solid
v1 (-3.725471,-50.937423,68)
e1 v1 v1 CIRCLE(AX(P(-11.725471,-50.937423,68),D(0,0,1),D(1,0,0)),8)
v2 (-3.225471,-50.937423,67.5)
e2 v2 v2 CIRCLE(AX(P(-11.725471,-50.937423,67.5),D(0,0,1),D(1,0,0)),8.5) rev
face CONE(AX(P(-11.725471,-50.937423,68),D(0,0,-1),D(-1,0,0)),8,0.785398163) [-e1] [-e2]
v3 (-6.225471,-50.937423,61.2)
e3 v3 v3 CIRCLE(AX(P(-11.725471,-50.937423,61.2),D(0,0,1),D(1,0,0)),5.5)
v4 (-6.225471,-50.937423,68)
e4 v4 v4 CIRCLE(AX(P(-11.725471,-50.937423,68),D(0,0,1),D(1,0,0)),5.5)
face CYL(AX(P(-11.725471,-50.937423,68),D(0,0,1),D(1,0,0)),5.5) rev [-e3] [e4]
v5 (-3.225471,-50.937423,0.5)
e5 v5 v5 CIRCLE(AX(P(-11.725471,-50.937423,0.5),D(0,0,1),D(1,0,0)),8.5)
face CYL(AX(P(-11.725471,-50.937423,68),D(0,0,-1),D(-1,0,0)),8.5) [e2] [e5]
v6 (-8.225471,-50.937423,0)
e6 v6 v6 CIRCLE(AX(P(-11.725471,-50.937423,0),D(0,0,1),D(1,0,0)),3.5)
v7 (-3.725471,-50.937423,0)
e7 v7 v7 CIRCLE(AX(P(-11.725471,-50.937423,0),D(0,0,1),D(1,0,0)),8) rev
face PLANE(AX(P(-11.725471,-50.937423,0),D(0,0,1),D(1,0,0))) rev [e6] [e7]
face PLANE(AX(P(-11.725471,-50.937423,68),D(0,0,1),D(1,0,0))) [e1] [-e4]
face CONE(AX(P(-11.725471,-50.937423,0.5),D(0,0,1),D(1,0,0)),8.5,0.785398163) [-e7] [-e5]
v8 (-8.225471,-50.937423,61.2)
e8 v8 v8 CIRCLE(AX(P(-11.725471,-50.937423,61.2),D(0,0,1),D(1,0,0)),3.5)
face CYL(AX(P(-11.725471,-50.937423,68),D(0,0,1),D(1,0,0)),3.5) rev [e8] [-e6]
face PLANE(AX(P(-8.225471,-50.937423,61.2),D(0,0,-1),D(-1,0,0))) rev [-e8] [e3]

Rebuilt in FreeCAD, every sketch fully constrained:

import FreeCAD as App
import Part
import Sketcher
Q = App.Units.Quantity


def edges_at(feature, points):
    """Names of the edges that pass closest to the given points."""
    edges = feature.Shape.Edges
    near = lambda p: min(range(len(edges)), key=lambda i: edges[i].distToShape(Part.Vertex(*p))[0])
    return sorted({f"Edge{near(p) + 1}" for p in points})

doc = App.newDocument("Part")
body = doc.addObject("PartDesign::Body", "Body")

# Sketch on XY plane
sketch1 = body.newObject("Sketcher::SketchObject", "Sketch")
sketch1.AttachmentSupport = (doc.getObject("XY_Plane"), [""])
sketch1.MapMode = "FlatFace"
sketch1.addGeometry(Part.Circle(App.Vector(-12, -51, 0), App.Vector(0, 0, 1), 8), False)
sketch1.addConstraint([
    Sketcher.Constraint("Diameter", 0, Q("17 mm")),
    Sketcher.Constraint("DistanceX", 0, 3, -1, 1, Q("11.725471 mm")),
    Sketcher.Constraint("DistanceY", 0, 3, -1, 1, Q("50.937423 mm")),
])
pad1 = body.newObject("PartDesign::Pad", "Pad")
pad1.Profile = sketch1
pad1.Length = 68

# Sketch on XY plane
sketch2 = body.newObject("Sketcher::SketchObject", "Sketch001")
sketch2.AttachmentSupport = (doc.getObject("XY_Plane"), [""])
sketch2.MapMode = "FlatFace"
sketch2.AttachmentOffset = App.Placement(App.Vector(0, 0, 68), App.Rotation())
sketch2.addGeometry(Part.Circle(App.Vector(-11.7, -50.9, 0), App.Vector(0, 0, 1), 3.5), False)
sketch2.addConstraint([
    Sketcher.Constraint("Diameter", 0, Q("7 mm")),
    Sketcher.Constraint("DistanceX", 0, 3, -1, 1, Q("11.725471 mm")),
    Sketcher.Constraint("DistanceY", 0, 3, -1, 1, Q("50.937423 mm")),
])
doc.recompute()
hole = body.newObject("PartDesign::Hole", "Hole")
hole.Profile = sketch2
hole.ThreadType = "None"
hole.Diameter = 7
hole.DepthType = "ThroughAll"
hole.HoleCutType = "Counterbore"
hole.HoleCutDiameter = 11
hole.HoleCutDepth = 6.8
doc.recompute()

chamfer = body.newObject("PartDesign::Chamfer", "Chamfer")
chamfer.Base = (hole, edges_at(hole, [(-20.225, -50.937, 0), (-20.225, -50.937, 68)]))
chamfer.Size = 0.5

doc.recompute()
